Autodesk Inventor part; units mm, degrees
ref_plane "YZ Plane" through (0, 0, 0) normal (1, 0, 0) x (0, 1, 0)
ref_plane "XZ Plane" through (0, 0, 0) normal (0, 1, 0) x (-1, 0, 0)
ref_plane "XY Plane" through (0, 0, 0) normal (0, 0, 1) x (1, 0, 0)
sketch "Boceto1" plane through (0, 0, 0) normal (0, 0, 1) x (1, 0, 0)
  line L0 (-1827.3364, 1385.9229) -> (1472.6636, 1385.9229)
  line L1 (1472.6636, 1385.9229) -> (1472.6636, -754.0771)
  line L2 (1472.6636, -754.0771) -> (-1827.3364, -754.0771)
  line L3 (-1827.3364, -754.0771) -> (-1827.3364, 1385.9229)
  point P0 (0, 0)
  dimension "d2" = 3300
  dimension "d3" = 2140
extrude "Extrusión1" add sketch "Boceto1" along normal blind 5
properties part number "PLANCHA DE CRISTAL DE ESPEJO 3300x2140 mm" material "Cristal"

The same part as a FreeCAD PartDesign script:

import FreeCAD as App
import Part
import Sketcher

V = App.Vector
Q = App.Units.Quantity

doc = App.newDocument("Part")
body = doc.addObject("PartDesign::Body", "Body")

# Sketch on XY plane
sketch1 = body.newObject("Sketcher::SketchObject", "Sketch")
sketch1.AttachmentSupport = (doc.getObject("XY_Plane"), [""])
sketch1.MapMode = "FlatFace"
sketch1.addGeometry(Part.LineSegment(V(1472.6636, 1385.9229, 0), V(-1827.3364, 1385.9229, 0)), False)
sketch1.addGeometry(Part.LineSegment(V(-1827.3364, 1385.9229, 0), V(-1827.3364, -754.0771, 0)), False)
sketch1.addGeometry(Part.LineSegment(V(-1827.3364, -754.0771, 0), V(1472.6636, -754.0771, 0)), False)
sketch1.addGeometry(Part.LineSegment(V(1472.6636, -754.0771, 0), V(1472.6636, 1385.9229, 0)), False)
sketch1.addConstraint(Sketcher.Constraint("Coincident", 0, 2, 1, 1))
sketch1.addConstraint(Sketcher.Constraint("Coincident", 1, 2, 2, 1))
sketch1.addConstraint(Sketcher.Constraint("Coincident", 2, 2, 3, 1))
sketch1.addConstraint(Sketcher.Constraint("Coincident", 3, 2, 0, 1))
sketch1.addConstraint(Sketcher.Constraint("Horizontal", 0))
sketch1.addConstraint(Sketcher.Constraint("Vertical", 1))
sketch1.addConstraint(Sketcher.Constraint("Horizontal", 2))
sketch1.addConstraint(Sketcher.Constraint("Vertical", 3))
sketch1.addConstraint(Sketcher.Constraint("DistanceX", 0, 2, 0, 1, Q("3300 mm")))
sketch1.addConstraint(Sketcher.Constraint("DistanceY", 1, 2, 1, 1, Q("2140 mm")))
sketch1.addConstraint(Sketcher.Constraint("DistanceY", -1, 1, 0, 2, Q("1385.923 mm")))
sketch1.addConstraint(Sketcher.Constraint("DistanceX", 0, 2, -1, 1, Q("1827.3364 mm")))
pad1 = body.newObject("PartDesign::Pad", "Pad")
pad1.Profile = sketch1
pad1.Length = 5

doc.recompute()
